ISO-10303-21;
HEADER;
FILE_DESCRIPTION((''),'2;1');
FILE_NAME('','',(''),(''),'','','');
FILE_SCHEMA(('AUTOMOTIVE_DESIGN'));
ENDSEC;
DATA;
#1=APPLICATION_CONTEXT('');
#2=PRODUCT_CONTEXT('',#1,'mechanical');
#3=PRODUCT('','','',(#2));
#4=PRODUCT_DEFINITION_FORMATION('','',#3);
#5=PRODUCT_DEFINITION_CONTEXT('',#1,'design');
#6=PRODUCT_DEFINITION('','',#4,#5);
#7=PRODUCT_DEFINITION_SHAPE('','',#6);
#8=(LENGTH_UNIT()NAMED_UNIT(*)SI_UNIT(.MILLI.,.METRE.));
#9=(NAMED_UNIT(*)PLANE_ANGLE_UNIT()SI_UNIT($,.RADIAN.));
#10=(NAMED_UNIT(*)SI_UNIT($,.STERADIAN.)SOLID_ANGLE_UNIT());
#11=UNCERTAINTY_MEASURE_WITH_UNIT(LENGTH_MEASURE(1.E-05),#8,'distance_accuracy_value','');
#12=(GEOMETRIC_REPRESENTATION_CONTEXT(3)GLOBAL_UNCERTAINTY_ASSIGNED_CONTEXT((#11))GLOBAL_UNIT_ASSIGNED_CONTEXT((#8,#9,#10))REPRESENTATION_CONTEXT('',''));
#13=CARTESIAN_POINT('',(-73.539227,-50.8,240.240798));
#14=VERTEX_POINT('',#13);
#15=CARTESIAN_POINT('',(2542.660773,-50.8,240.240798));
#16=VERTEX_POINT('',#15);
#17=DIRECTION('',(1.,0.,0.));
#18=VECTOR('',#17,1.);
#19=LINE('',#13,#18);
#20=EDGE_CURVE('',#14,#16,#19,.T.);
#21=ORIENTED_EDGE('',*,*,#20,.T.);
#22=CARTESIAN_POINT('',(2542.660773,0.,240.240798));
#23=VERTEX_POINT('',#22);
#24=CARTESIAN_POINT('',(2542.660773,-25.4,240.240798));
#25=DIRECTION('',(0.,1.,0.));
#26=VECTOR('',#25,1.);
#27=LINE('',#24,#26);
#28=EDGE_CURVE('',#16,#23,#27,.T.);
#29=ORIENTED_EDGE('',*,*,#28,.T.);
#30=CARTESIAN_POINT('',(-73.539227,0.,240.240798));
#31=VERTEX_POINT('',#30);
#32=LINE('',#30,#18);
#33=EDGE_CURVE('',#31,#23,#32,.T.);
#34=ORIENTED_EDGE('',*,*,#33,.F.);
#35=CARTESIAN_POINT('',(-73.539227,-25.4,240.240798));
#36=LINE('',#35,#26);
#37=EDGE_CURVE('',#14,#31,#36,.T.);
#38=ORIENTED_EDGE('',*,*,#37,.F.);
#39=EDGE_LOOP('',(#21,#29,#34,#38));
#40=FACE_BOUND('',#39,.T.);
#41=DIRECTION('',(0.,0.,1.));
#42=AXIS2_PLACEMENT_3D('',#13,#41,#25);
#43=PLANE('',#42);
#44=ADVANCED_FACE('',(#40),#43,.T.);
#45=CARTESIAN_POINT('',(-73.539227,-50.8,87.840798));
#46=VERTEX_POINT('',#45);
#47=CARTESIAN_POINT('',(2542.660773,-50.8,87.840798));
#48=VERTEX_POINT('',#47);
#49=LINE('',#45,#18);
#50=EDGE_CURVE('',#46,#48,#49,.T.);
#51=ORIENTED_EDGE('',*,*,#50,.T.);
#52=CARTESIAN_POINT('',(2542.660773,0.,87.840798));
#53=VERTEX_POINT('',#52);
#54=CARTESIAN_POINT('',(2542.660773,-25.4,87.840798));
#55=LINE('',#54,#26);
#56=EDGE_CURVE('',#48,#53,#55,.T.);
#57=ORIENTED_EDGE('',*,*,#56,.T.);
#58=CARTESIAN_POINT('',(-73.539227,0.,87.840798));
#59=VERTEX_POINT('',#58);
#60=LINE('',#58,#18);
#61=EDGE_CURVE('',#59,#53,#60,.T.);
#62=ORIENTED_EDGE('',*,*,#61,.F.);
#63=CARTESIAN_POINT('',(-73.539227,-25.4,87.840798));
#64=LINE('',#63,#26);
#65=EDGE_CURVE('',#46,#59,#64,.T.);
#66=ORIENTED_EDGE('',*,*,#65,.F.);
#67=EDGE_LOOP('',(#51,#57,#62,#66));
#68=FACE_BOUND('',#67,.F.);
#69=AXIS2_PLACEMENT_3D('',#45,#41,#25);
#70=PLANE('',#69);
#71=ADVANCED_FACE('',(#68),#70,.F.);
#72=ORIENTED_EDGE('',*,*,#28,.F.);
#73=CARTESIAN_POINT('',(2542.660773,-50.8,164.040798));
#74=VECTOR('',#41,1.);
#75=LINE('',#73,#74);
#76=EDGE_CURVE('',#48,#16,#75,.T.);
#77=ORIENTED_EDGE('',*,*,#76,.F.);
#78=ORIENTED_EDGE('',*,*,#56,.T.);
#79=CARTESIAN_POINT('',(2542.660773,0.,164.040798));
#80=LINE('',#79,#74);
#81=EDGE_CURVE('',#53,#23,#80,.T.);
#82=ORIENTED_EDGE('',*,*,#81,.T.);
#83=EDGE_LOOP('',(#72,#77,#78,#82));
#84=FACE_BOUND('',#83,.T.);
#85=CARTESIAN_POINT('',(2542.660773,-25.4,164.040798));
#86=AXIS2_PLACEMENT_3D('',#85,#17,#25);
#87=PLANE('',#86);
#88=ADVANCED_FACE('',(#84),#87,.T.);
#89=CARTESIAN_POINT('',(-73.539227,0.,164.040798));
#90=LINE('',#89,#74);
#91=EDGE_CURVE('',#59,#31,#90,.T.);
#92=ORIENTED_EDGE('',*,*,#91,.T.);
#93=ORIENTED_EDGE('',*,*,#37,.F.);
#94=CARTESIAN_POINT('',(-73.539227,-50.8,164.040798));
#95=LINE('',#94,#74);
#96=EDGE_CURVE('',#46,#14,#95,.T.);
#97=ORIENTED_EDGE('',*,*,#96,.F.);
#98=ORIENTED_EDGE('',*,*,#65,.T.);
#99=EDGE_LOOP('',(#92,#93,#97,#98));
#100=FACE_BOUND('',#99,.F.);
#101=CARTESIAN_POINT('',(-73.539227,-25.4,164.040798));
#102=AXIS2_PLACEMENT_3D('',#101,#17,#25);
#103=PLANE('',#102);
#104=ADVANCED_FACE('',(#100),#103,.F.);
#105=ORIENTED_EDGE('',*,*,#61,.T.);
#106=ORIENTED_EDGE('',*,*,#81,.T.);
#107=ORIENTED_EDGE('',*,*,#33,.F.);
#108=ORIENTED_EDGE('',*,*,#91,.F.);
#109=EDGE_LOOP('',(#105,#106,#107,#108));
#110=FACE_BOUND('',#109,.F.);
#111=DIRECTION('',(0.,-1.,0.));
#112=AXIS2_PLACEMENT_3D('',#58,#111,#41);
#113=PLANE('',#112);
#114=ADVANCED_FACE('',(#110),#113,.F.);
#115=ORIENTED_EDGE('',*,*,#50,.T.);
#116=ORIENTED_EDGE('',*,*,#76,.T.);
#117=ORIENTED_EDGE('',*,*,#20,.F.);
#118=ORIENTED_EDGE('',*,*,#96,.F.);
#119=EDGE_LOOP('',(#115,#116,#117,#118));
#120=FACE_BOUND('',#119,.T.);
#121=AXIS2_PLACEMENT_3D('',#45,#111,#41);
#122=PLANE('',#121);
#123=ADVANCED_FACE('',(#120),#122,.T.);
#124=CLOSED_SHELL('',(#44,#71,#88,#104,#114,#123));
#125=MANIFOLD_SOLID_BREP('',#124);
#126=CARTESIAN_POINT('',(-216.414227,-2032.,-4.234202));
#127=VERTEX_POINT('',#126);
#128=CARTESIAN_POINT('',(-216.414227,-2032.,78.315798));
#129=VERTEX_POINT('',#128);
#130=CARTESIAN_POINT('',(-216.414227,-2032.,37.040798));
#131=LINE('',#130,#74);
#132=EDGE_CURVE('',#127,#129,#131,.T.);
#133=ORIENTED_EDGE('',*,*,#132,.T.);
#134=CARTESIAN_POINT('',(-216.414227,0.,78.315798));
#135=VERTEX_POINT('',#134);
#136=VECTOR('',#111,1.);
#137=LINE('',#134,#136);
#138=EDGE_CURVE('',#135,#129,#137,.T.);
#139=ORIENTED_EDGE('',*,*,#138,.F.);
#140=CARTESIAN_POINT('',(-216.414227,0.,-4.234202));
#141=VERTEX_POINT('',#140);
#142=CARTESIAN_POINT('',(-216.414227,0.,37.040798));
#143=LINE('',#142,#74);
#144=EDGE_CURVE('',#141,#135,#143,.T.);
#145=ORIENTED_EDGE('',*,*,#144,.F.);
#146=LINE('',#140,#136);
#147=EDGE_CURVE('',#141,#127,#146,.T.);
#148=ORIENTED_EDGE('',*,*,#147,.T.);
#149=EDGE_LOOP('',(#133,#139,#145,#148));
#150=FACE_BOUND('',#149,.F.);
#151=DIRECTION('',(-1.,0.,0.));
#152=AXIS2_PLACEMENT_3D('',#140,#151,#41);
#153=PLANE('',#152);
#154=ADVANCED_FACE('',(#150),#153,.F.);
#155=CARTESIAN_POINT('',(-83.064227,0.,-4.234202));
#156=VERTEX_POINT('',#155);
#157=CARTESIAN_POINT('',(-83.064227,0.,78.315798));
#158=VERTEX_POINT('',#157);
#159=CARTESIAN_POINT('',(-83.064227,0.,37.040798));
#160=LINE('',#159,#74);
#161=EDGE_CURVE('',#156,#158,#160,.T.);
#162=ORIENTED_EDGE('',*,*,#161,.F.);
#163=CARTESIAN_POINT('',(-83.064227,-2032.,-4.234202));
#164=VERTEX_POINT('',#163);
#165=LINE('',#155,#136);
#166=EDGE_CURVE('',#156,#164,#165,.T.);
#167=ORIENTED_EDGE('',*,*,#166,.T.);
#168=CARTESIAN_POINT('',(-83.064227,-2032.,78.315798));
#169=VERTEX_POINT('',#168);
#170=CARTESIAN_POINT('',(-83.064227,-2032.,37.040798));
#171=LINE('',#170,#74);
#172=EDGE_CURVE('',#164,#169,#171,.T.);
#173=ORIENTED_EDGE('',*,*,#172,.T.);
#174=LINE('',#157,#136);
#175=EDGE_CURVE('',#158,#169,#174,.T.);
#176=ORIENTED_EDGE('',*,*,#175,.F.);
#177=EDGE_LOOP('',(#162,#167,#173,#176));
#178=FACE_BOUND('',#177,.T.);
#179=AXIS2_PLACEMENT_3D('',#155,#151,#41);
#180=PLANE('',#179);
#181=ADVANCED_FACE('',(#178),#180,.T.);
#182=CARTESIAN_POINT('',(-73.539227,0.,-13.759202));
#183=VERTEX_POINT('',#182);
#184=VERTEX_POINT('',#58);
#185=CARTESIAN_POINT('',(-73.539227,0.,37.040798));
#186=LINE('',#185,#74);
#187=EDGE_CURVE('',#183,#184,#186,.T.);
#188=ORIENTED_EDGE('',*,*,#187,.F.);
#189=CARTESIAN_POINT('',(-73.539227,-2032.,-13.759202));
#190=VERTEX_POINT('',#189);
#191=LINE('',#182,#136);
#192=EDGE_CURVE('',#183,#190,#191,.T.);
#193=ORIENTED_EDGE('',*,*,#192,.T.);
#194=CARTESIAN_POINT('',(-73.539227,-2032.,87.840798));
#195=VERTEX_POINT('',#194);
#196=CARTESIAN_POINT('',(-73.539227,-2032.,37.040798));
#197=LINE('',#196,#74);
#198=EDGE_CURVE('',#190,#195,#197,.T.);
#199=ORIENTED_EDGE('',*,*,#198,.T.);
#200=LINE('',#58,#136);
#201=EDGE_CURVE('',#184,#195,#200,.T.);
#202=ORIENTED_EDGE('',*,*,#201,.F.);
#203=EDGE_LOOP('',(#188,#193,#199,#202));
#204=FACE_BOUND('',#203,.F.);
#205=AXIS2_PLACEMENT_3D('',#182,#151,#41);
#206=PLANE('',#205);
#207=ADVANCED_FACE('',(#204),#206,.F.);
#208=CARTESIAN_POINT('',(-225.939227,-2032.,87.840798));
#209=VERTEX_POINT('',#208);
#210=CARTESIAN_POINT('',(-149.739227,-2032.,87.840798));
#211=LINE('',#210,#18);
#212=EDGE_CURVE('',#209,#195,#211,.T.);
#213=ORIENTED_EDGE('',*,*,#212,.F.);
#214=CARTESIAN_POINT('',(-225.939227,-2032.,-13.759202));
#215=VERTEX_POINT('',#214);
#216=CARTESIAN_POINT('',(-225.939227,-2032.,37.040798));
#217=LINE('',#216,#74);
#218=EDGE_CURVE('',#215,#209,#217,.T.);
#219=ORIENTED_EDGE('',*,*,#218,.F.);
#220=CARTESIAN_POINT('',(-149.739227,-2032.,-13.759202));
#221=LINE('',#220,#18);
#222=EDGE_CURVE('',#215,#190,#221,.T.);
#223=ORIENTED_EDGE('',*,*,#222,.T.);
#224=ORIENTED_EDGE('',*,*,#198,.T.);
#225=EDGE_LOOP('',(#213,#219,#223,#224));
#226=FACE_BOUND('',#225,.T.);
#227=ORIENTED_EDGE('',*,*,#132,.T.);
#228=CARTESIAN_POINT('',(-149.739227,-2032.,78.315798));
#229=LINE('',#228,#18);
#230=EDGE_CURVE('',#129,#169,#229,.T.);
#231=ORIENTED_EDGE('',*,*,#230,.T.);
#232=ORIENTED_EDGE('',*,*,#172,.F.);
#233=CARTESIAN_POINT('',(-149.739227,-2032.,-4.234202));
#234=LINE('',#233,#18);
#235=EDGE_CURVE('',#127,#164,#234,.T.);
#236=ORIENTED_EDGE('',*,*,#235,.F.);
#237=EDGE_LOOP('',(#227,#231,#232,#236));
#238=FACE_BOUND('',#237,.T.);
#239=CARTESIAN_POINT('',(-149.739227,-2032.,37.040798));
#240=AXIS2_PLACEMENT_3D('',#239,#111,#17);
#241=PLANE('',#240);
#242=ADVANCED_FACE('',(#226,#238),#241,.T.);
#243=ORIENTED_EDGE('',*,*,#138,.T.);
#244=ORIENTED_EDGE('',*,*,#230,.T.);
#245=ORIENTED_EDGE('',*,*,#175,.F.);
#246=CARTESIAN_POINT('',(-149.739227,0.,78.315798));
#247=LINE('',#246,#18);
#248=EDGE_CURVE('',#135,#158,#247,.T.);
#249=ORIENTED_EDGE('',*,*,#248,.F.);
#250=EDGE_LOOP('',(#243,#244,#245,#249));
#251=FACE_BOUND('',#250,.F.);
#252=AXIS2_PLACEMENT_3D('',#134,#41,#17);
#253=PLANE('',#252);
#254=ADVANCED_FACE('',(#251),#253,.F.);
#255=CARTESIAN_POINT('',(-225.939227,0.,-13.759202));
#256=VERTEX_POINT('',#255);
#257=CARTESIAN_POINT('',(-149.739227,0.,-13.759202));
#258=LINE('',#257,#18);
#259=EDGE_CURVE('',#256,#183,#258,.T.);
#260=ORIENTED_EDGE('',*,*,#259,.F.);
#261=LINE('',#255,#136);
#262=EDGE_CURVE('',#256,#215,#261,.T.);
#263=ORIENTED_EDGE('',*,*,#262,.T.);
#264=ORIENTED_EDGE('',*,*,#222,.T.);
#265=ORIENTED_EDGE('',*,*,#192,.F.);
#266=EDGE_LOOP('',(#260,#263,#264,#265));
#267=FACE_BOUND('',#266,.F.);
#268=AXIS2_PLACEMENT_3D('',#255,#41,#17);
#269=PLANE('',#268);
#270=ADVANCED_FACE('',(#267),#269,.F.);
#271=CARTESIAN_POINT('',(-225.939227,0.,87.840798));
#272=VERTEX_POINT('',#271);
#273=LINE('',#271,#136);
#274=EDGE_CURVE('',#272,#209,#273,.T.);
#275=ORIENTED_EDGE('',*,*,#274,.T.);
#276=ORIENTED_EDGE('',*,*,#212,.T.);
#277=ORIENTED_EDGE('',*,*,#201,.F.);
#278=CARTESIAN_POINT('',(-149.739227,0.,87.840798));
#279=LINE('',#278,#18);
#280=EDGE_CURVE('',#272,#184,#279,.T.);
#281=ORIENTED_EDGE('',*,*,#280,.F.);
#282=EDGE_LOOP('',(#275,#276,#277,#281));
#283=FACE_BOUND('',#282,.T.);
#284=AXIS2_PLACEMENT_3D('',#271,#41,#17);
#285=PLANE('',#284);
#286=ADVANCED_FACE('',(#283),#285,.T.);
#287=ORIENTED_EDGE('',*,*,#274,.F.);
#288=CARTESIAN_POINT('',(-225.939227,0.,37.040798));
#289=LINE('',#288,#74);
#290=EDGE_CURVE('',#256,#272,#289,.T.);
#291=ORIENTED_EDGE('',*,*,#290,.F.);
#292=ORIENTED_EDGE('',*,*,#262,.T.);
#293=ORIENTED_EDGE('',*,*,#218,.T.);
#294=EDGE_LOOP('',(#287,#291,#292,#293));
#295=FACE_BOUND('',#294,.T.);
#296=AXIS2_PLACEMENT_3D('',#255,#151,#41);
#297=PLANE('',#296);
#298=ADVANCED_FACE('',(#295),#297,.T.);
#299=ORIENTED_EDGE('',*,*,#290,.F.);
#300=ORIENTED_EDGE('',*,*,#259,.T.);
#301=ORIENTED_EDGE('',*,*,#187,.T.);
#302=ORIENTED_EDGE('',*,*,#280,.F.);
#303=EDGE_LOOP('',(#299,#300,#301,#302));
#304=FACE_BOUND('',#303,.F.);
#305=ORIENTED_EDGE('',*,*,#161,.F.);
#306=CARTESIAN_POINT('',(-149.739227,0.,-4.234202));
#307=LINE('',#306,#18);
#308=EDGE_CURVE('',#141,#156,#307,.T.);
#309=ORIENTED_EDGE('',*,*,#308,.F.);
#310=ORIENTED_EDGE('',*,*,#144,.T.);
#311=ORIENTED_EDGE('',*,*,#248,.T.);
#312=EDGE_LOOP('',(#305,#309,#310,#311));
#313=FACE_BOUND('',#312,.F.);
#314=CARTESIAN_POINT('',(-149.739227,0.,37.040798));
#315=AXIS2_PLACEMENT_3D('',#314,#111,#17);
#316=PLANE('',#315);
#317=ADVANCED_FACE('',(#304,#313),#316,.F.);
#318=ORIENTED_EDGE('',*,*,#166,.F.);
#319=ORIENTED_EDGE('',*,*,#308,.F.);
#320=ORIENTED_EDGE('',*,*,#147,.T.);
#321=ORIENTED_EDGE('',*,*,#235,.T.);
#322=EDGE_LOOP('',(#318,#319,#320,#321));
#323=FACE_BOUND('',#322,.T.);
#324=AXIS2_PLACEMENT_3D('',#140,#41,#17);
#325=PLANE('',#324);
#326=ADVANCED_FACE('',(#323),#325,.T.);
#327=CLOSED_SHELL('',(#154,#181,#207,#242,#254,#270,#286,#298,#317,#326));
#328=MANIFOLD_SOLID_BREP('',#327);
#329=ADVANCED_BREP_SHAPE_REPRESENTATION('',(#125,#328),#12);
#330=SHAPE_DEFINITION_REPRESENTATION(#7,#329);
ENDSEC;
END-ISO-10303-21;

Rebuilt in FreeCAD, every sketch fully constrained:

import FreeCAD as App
import Part
import Sketcher
from FreeCAD import Vector
Q = App.Units.Quantity


def add_polygon(sketch, points):
    """Adds a closed chain of lines whose ends are joined by coincident constraints."""
    first, n = sketch.GeometryCount, len(points)
    for a, b in zip(points, points[1:] + points[:1]):
        sketch.addGeometry(Part.LineSegment(App.Vector(*a, 0), App.Vector(*b, 0)), False)
    for i in range(n):
        sketch.addConstraint(Sketcher.Constraint("Coincident", first + i, 2, first + (i + 1) % n, 1))

doc = App.newDocument("Part")
body = doc.addObject("PartDesign::Body", "Body")

sketch1 = body.newObject("Sketcher::SketchObject", "Sketch")
sketch1.AttachmentSupport = (doc.getObject("XZ_Plane"), [""])
sketch1.MapMode = "FlatFace"
add_polygon(sketch1, [(-225.939227, 87.840798), (-225.939227, -13.759202), (-73.539227, -13.759202), (-73.539227, 87.840798)])
add_polygon(sketch1, [(-83.064227, -4.234202), (-216.414227, -4.234202), (-216.414227, 78.315798), (-83.064227, 78.315798)])
sketch1.addConstraint([
    Sketcher.Constraint("Vertical", 0),
    Sketcher.Constraint("Horizontal", 1),
    Sketcher.Constraint("Vertical", 2),
    Sketcher.Constraint("Horizontal", 3),
    Sketcher.Constraint("Horizontal", 4),
    Sketcher.Constraint("Vertical", 5),
    Sketcher.Constraint("Horizontal", 6),
    Sketcher.Constraint("Vertical", 7),
    Sketcher.Constraint("DistanceX", 1, 1, 1, 2, Q("6 in")),
    Sketcher.Constraint("DistanceY", 0, 2, 0, 1, Q("4 in")),
    Sketcher.Constraint("DistanceX", 4, 2, 4, 1, Q("5.25 in")),
    Sketcher.Constraint("DistanceY", 5, 1, 5, 2, Q("3.25 in")),
    Sketcher.Constraint("DistanceX", 0, 2, 4, 2, Q("0.375 in")),
    Sketcher.Constraint("DistanceY", 0, 2, 4, 2, Q("0.375 in")),
    Sketcher.Constraint("DistanceY", -1, 1, 2, 2, Q("87.840798 mm")),
    Sketcher.Constraint("DistanceX", 0, 2, -1, 1, Q("225.939227 mm")),
])
pad1 = body.newObject("PartDesign::Pad", "Pad")
pad1.Profile = sketch1
pad1.Length = Q("80 in")
body2 = doc.addObject("PartDesign::Body", "Body001")

sketch2 = body2.newObject("Sketcher::SketchObject", "Sketch001")
sketch2.AttachmentSupport = (doc.getObject("YZ_Plane001"), [""])
sketch2.MapMode = "FlatFace"
sketch2.AttachmentOffset = App.Placement(Vector(0, 0, -73.539227), App.Rotation())
add_polygon(sketch2, [(-50.8, 240.240798), (-50.8, 87.840798), (0, 87.840798), (0, 240.240798)])
sketch2.addConstraint([
    Sketcher.Constraint("Vertical", 0),
    Sketcher.Constraint("Horizontal", 1),
    Sketcher.Constraint("Vertical", 2),
    Sketcher.Constraint("Horizontal", 3),
    Sketcher.Constraint("PointOnObject", 1, 2, -2),
    Sketcher.Constraint("DistanceX", 1, 1, 1, 2, Q("2 in")),
    Sketcher.Constraint("DistanceY", 0, 2, 0, 1, Q("6 in")),
    Sketcher.Constraint("DistanceY", -1, 1, 0, 2, Q("87.840798 mm")),
])
pad2 = body2.newObject("PartDesign::Pad", "Pad001")
pad2.Profile = sketch2
pad2.Length = Q("103 in")

doc.recompute()
